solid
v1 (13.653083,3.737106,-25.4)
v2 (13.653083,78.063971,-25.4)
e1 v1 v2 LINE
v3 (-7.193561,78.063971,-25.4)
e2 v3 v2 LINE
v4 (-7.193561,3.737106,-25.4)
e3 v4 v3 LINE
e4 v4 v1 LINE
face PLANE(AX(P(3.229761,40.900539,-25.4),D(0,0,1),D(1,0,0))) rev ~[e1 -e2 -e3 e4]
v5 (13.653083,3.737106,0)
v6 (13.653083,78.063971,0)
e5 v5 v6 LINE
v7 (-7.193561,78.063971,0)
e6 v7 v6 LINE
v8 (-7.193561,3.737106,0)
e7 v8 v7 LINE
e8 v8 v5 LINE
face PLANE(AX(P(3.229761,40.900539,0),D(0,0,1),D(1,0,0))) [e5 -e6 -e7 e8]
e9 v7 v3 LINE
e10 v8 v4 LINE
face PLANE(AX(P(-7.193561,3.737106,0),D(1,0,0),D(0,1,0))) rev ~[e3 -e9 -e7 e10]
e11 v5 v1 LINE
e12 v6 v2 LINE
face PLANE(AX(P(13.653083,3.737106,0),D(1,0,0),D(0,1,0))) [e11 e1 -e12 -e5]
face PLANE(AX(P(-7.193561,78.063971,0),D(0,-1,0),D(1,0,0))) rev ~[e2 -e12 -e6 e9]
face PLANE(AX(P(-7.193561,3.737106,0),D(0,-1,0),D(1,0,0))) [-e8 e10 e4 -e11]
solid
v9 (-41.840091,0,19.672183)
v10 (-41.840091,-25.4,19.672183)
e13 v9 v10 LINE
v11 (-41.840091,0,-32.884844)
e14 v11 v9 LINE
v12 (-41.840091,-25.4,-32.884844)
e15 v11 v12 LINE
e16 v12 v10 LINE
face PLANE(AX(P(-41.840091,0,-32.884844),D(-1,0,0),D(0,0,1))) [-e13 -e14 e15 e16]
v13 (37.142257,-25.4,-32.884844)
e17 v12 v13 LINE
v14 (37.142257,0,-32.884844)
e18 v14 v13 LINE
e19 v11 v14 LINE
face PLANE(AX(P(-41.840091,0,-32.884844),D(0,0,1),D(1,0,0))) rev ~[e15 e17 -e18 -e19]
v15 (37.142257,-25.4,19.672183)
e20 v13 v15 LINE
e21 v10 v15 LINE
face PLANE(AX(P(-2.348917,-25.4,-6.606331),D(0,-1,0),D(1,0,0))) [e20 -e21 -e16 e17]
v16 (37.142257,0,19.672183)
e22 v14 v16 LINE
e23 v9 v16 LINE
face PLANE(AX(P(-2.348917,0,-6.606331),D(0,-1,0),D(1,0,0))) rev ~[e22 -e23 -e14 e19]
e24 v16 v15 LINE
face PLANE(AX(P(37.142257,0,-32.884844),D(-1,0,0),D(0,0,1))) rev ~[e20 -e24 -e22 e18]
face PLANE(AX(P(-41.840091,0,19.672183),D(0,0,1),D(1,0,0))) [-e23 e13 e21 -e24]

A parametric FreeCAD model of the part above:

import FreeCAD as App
import Part
import Sketcher
Q = App.Units.Quantity

doc = App.newDocument("Part")
body = doc.addObject("PartDesign::Body", "Body")

# Sketch on XZ plane
sketch1 = doc.addObject("Sketcher::SketchObject", "Sketch")
body.addObject(sketch1)
sketch1.AttachmentSupport = (doc.XZ_Plane, [""])
sketch1.MapMode = "FlatFace"
sketch1.addGeometry([
    Part.LineSegment(App.Vector(-42, 20, 0), App.Vector(-42, -33, 0)),
    Part.LineSegment(App.Vector(-42, -33, 0), App.Vector(37, -33, 0)),
    Part.LineSegment(App.Vector(37, -33, 0), App.Vector(37, 20, 0)),
    Part.LineSegment(App.Vector(37, 20, 0), App.Vector(-42, 20, 0)),
], False)
sketch1.addConstraint([
    Sketcher.Constraint("Coincident", 0, 2, 1, 1),
    Sketcher.Constraint("Coincident", 1, 2, 2, 1),
    Sketcher.Constraint("Coincident", 2, 2, 3, 1),
    Sketcher.Constraint("Coincident", 3, 2, 0, 1),
    Sketcher.Constraint("Vertical", 0),
    Sketcher.Constraint("Horizontal", 1),
    Sketcher.Constraint("Vertical", 2),
    Sketcher.Constraint("Horizontal", 3),
    Sketcher.Constraint("DistanceX", 1, 1, 1, 2, Q("78.982349 mm")),
    Sketcher.Constraint("DistanceY", 0, 2, 0, 1, Q("52.557027 mm")),
    Sketcher.Constraint("DistanceX", 0, 2, -1, 1, Q("41.840091 mm")),
    Sketcher.Constraint("DistanceY", 0, 2, -1, 1, Q("32.884844 mm")),
])
pad1 = doc.addObject("PartDesign::Pad", "Pad")
body.addObject(pad1)
pad1.Profile = sketch1
pad1.Length = Q("1 in")
body2 = doc.addObject("PartDesign::Body", "Body001")

# Sketch on XY plane
sketch2 = doc.addObject("Sketcher::SketchObject", "Sketch001")
body2.addObject(sketch2)
sketch2.AttachmentSupport = (doc.getObject("XY_Plane001"), [""])
sketch2.MapMode = "FlatFace"
sketch2.addGeometry([
    Part.LineSegment(App.Vector(-7, 78, 0), App.Vector(-7, 4, 0)),
    Part.LineSegment(App.Vector(-7, 4, 0), App.Vector(14, 4, 0)),
    Part.LineSegment(App.Vector(14, 4, 0), App.Vector(14, 78, 0)),
    Part.LineSegment(App.Vector(14, 78, 0), App.Vector(-7, 78, 0)),
], False)
sketch2.addConstraint([
    Sketcher.Constraint("Coincident", 0, 2, 1, 1),
    Sketcher.Constraint("Coincident", 1, 2, 2, 1),
    Sketcher.Constraint("Coincident", 2, 2, 3, 1),
    Sketcher.Constraint("Coincident", 3, 2, 0, 1),
    Sketcher.Constraint("Vertical", 0),
    Sketcher.Constraint("Horizontal", 1),
    Sketcher.Constraint("Vertical", 2),
    Sketcher.Constraint("Horizontal", 3),
    Sketcher.Constraint("DistanceX", 1, 1, 1, 2, Q("20.846644 mm")),
    Sketcher.Constraint("DistanceY", 0, 2, 0, 1, Q("74.326865 mm")),
    Sketcher.Constraint("DistanceX", 0, 2, -1, 1, Q("7.193561 mm")),
    Sketcher.Constraint("DistanceY", -1, 1, 2, 2, Q("78.063971 mm")),
])
pad2 = doc.addObject("PartDesign::Pad", "Pad001")
body2.addObject(pad2)
pad2.Profile = sketch2
pad2.Length = Q("1 in")
pad2.Reversed = True

doc.recompute()
